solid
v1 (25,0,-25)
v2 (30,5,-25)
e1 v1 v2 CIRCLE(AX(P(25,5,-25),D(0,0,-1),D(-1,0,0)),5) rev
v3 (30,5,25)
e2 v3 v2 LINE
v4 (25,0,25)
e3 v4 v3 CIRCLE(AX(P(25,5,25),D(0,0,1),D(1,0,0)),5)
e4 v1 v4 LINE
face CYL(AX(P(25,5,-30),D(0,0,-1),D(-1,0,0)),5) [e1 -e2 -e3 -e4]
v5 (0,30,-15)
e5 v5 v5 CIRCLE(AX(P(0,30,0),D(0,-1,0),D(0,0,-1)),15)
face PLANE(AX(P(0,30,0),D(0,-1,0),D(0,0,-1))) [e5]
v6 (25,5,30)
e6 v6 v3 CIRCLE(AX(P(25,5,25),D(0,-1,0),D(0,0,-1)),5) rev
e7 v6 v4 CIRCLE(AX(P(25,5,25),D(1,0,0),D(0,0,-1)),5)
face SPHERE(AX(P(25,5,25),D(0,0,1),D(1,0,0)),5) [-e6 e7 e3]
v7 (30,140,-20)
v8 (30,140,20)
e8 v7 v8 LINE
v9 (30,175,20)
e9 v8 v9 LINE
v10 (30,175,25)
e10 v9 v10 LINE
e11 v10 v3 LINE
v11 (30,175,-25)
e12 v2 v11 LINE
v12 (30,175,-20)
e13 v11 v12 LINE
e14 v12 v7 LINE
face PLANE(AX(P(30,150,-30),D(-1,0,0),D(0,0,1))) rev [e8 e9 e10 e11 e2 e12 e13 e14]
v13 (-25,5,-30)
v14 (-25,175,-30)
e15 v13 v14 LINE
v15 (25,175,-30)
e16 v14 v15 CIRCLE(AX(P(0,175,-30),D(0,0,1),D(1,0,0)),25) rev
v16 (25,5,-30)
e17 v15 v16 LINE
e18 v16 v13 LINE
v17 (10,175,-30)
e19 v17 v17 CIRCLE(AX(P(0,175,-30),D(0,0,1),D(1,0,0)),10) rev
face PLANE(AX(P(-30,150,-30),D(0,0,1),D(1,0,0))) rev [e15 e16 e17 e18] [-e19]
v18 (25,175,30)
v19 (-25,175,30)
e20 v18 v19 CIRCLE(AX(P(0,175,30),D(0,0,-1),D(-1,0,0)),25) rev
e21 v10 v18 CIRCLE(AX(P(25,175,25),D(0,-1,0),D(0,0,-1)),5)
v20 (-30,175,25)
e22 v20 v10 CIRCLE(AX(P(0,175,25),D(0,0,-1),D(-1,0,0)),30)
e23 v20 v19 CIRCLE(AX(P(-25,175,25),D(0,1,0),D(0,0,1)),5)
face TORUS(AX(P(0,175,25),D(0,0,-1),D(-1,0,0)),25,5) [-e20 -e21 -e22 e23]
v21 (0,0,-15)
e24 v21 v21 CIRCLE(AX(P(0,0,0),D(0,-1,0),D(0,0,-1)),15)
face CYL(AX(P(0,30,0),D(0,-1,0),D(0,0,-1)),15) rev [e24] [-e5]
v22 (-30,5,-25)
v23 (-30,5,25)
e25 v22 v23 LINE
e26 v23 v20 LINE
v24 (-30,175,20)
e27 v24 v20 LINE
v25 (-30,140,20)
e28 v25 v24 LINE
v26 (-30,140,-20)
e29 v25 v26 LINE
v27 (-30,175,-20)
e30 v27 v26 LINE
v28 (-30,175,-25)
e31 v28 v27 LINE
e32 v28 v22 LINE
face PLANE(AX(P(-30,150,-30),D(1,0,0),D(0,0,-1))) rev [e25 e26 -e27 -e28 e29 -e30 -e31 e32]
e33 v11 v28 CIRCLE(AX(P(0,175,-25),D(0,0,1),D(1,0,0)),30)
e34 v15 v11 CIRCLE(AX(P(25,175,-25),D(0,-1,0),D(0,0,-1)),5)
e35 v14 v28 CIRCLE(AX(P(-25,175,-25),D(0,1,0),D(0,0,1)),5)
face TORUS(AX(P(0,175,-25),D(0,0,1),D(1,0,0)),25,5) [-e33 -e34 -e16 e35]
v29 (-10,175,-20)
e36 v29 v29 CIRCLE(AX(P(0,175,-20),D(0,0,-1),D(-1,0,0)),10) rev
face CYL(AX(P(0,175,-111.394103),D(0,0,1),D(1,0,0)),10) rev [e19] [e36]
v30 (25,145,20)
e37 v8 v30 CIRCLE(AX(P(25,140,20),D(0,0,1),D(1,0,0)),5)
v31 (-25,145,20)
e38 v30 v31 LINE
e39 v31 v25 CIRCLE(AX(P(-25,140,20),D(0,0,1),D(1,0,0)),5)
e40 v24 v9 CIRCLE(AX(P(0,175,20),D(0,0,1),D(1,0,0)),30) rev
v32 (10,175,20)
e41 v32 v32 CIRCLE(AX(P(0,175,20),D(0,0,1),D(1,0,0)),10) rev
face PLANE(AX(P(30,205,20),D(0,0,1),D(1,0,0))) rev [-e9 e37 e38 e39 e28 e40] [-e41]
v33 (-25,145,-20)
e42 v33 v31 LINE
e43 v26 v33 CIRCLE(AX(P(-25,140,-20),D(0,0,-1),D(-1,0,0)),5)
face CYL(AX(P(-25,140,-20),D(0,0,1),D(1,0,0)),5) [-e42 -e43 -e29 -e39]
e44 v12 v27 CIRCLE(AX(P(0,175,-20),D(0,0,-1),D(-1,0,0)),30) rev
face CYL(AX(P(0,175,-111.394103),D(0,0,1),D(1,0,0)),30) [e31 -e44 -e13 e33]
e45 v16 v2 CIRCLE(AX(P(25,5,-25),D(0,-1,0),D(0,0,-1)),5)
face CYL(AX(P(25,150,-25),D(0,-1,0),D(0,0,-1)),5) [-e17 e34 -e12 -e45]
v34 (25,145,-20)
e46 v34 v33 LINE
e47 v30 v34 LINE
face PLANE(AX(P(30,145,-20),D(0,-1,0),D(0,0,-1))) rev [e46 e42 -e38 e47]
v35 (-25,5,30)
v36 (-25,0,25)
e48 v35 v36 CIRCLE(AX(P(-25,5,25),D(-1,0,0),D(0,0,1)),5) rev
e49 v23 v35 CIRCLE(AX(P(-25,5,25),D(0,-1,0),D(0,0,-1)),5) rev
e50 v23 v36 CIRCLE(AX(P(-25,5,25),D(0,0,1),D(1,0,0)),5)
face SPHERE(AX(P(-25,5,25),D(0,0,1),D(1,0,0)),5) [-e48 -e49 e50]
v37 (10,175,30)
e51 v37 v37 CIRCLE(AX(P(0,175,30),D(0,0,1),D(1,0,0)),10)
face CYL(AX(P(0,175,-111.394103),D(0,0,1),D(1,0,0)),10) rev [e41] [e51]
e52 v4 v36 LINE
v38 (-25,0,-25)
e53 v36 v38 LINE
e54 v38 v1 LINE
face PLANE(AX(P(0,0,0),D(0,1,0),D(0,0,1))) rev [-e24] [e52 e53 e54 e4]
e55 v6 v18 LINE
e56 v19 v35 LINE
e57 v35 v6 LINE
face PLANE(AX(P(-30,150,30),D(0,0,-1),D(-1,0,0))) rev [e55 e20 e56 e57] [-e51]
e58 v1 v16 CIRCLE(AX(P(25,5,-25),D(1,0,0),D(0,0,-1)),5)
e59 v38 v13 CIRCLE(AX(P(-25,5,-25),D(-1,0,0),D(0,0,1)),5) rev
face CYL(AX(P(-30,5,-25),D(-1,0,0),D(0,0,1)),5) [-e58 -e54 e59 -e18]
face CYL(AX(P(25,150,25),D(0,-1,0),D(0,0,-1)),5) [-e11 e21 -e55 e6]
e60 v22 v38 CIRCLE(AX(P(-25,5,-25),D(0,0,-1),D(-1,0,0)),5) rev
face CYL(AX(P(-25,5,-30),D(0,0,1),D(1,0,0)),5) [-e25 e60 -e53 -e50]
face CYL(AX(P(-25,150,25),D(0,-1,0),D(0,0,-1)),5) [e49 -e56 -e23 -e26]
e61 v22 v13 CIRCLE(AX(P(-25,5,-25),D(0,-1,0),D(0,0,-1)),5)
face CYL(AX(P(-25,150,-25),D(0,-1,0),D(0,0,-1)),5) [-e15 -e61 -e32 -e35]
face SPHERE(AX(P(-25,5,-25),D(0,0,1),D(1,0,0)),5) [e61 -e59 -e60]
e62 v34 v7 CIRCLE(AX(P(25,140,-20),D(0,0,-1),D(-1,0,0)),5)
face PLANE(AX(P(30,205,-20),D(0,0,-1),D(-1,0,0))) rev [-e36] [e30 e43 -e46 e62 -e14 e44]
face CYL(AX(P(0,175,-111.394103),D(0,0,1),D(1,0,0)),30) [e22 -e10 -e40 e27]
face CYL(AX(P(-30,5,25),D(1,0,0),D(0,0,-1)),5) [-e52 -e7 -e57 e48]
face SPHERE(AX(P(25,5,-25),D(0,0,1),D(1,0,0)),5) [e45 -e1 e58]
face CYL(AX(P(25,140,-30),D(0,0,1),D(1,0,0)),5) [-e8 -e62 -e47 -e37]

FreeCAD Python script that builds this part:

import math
import FreeCAD as App
import Part
import Sketcher
from FreeCAD import Vector


def edges_at(feature, points):
    """Names of the edges that pass closest to the given points."""
    edges = feature.Shape.Edges
    near = lambda p: min(range(len(edges)), key=lambda i: edges[i].distToShape(Part.Vertex(*p))[0])
    return sorted({f"Edge{near(p) + 1}" for p in points})

doc = App.newDocument("Part")
params = doc.addObject("Spreadsheet::Sheet", "Params")
for row, (alias, value) in enumerate([
    ("sketch1_width", "60 mm"),
    ("pad1_length", "150 mm"),
    ("sketch2_diameter", "30 mm"),
    ("pocket1_length", "30 mm"),
    ("sketch3_diameter", "20 mm"),
    ("sketch3_radius", "30 mm"),
    ("sketch3_height", "25 mm"),
    ("pad2_length", "60 mm"),
    ("sketch4_width", "60 mm"),
    ("sketch4_height", "40 mm"),
    ("fillet_radius", "5 mm"),
], start=1):
    params.set(f"A{row}", alias)
    params.set(f"B{row}", "=" + value)
    params.setAlias(f"B{row}", alias)

body = doc.addObject("PartDesign::Body", "Body")

sketch1 = doc.addObject("Sketcher::SketchObject", "Sketch")
body.addObject(sketch1)
sketch1.AttachmentSupport = (doc.XZ_Plane, [""])
sketch1.MapMode = "FlatFace"
sketch1.addGeometry([
    Part.LineSegment(Vector(-30, -30, 0), Vector(-30, 30, 0)),
    Part.LineSegment(Vector(-30, 30, 0), Vector(30, 30, 0)),
    Part.LineSegment(Vector(30, 30, 0), Vector(30, -30, 0)),
    Part.LineSegment(Vector(30, -30, 0), Vector(-30, -30, 0)),
], False)
sketch1.addConstraint([
    Sketcher.Constraint("Coincident", 0, 2, 1, 1),
    Sketcher.Constraint("Coincident", 1, 2, 2, 1),
    Sketcher.Constraint("Coincident", 2, 2, 3, 1),
    Sketcher.Constraint("Coincident", 3, 2, 0, 1),
    Sketcher.Constraint("Vertical", 0),
    Sketcher.Constraint("Horizontal", 1),
    Sketcher.Constraint("Vertical", 2),
    Sketcher.Constraint("Horizontal", 3),
    Sketcher.Constraint("Symmetric", 0, 2, 2, 2, -1, 1),
    Sketcher.Constraint("Equal", 3, 0),
    Sketcher.Constraint("DistanceX", 1, 1, 1, 2, 60.0),
])
sketch1.setExpression("Constraints[10]", "Params.sketch1_width")
pad1 = doc.addObject("PartDesign::Pad", "Pad")
body.addObject(pad1)
pad1.Profile = sketch1
pad1.setExpression("Length", "Params.pad1_length")
pad1.Reversed = True

sketch2 = doc.addObject("Sketcher::SketchObject", "Sketch001")
body.addObject(sketch2)
sketch2.AttachmentSupport = (doc.XZ_Plane, [""])
sketch2.MapMode = "FlatFace"
sketch2.addGeometry(Part.Circle(Vector(0, 0, 0), Vector(0, 0, 1), 15), False)
sketch2.addConstraint([
    Sketcher.Constraint("Coincident", 0, 3, -1, 1),
    Sketcher.Constraint("Diameter", 0, 30.0),
])
sketch2.setExpression("Constraints[1]", "Params.sketch2_diameter")
pocket1 = doc.addObject("PartDesign::Pocket", "Pocket")
body.addObject(pocket1)
pocket1.Profile = sketch2
pocket1.setExpression("Length", "Params.pocket1_length")

sketch3 = doc.addObject("Sketcher::SketchObject", "Sketch002")
body.addObject(sketch3)
sketch3.AttachmentSupport = (doc.XY_Plane, [""])
sketch3.MapMode = "FlatFace"
sketch3.AttachmentOffset = App.Placement(Vector(0, 0, 30), App.Rotation())
sketch3.addGeometry([
    Part.LineSegment(Vector(-30, 175, 0), Vector(-30, 150, 0)),
    Part.LineSegment(Vector(-30, 150, 0), Vector(30, 150, 0)),
    Part.LineSegment(Vector(30, 150, 0), Vector(30, 175, 0)),
    Part.ArcOfCircle(Part.Circle(Vector(0, 175, 0), Vector(0, 0, 1), 30), math.radians(0), math.radians(180)),
    Part.Circle(Vector(0, 175, 0), Vector(0, 0, 1), 10),
], False)
sketch3.addConstraint([
    Sketcher.Constraint("Coincident", 0, 2, 1, 1),
    Sketcher.Constraint("Coincident", 1, 2, 2, 1),
    Sketcher.Constraint("Tangent", 2, 2, 3, 1),
    Sketcher.Constraint("Tangent", 3, 2, 0, 1),
    Sketcher.Constraint("Vertical", 0),
    Sketcher.Constraint("Horizontal", 1),
    Sketcher.Constraint("Vertical", 2),
    Sketcher.Constraint("Coincident", 4, 3, 3, 3),
    Sketcher.Constraint("PointOnObject", 3, 3, -2),
    Sketcher.Constraint("Diameter", 4, 20.0),
    Sketcher.Constraint("Radius", 3, 30.0),
    Sketcher.Constraint("DistanceY", 0, 2, 0, 1, 25.0),
    Sketcher.Constraint("DistanceY", -1, 1, 3, 3, 175.0),
])
sketch3.setExpression("Constraints[9]", "Params.sketch3_diameter")
sketch3.setExpression("Constraints[10]", "Params.sketch3_radius")
sketch3.setExpression("Constraints[11]", "Params.sketch3_height")
pad2 = doc.addObject("PartDesign::Pad", "Pad001")
body.addObject(pad2)
pad2.Profile = sketch3
pad2.setExpression("Length", "Params.pad2_length")
pad2.Reversed = True

sketch4 = doc.addObject("Sketcher::SketchObject", "Sketch003")
body.addObject(sketch4)
sketch4.AttachmentSupport = (doc.YZ_Plane, [""])
sketch4.MapMode = "FlatFace"
sketch4.AttachmentOffset = App.Placement(Vector(0, 0, -30), App.Rotation())
sketch4.addGeometry([
    Part.LineSegment(Vector(205, -20, 0), Vector(145, -20, 0)),
    Part.LineSegment(Vector(145, -20, 0), Vector(145, 20, 0)),
    Part.LineSegment(Vector(145, 20, 0), Vector(205, 20, 0)),
    Part.LineSegment(Vector(205, 20, 0), Vector(205, -20, 0)),
], False)
sketch4.addConstraint([
    Sketcher.Constraint("Coincident", 0, 2, 1, 1),
    Sketcher.Constraint("Coincident", 1, 2, 2, 1),
    Sketcher.Constraint("Coincident", 2, 2, 3, 1),
    Sketcher.Constraint("Coincident", 3, 2, 0, 1),
    Sketcher.Constraint("Horizontal", 0),
    Sketcher.Constraint("Vertical", 1),
    Sketcher.Constraint("Horizontal", 2),
    Sketcher.Constraint("Vertical", 3),
    Sketcher.Constraint("DistanceX", 0, 2, 0, 1, 60.0),
    Sketcher.Constraint("DistanceY", 1, 1, 1, 2, 40.0),
    Sketcher.Constraint("DistanceX", -1, 1, 0, 2, 145.0),
    Sketcher.Constraint("DistanceY", 0, 2, -1, 1, 20.0),
])
sketch4.setExpression("Constraints[8]", "Params.sketch4_width")
sketch4.setExpression("Constraints[9]", "Params.sketch4_height")
pocket2 = doc.addObject("PartDesign::Pocket", "Pocket001")
body.addObject(pocket2)
pocket2.Profile = sketch4
pocket2.Type = "ThroughAll"
pocket2.Reversed = True
doc.recompute()

fillet = doc.addObject("PartDesign::Fillet", "Fillet")
body.addObject(fillet)
fillet.Base = (pocket2, edges_at(pocket2, [
    (0, 205, 30),
    (0, 205, -30),
    (-30, 145, 0),
    (30, 145, 0),
    (0, 0, 30),
    (-30, 0, 0),
    (0, 0, -30),
    (30, 0, 0),
    (30, 87.5, 30),
    (-30, 87.5, 30),
    (-30, 87.5, -30),
    (30, 87.5, -30),
]))
fillet.setExpression("Radius", "Params.fillet_radius")

doc.recompute()
